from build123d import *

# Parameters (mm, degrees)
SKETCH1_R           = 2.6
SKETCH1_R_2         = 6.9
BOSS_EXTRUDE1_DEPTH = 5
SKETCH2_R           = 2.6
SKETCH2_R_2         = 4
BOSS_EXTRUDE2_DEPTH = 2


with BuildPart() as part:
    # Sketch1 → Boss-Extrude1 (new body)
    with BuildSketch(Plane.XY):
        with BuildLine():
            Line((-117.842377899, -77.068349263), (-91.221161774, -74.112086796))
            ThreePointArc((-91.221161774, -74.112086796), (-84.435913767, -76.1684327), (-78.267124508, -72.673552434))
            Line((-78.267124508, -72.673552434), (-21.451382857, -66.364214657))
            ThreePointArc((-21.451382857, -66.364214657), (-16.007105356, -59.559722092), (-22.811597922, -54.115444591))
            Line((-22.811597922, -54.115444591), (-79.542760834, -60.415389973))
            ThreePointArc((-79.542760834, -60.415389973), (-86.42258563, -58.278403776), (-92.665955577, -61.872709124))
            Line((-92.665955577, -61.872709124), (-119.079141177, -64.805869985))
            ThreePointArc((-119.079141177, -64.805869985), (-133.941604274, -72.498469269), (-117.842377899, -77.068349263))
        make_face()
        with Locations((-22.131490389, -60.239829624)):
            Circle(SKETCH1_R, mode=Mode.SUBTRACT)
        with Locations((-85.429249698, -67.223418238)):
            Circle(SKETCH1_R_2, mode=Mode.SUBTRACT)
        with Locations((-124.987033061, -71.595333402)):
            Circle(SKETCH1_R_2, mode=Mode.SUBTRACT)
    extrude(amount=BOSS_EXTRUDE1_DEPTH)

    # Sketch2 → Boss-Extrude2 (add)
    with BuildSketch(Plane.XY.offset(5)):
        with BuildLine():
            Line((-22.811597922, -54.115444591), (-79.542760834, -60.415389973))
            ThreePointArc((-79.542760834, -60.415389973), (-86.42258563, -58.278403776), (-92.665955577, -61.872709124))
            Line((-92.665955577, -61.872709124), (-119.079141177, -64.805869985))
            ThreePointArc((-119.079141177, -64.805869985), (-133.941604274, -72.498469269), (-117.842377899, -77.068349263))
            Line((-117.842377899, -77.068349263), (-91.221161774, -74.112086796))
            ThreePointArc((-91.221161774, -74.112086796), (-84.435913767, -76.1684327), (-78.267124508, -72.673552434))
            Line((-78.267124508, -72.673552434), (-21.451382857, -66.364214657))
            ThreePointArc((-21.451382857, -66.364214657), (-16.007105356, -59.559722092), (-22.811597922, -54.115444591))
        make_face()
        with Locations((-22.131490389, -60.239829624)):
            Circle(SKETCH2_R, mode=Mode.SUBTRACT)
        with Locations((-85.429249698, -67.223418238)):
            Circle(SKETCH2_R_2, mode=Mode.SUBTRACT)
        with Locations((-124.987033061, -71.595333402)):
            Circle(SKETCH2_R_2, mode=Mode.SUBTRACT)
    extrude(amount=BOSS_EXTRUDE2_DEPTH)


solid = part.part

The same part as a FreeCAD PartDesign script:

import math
import FreeCAD as App
import Part
import Sketcher
from FreeCAD import Vector

doc = App.newDocument("Part")
body = doc.addObject("PartDesign::Body", "Body")

sketch1 = doc.addObject("Sketcher::SketchObject", "Sketch")
body.addObject(sketch1)
sketch1.AttachmentSupport = (doc.XY_Plane, [""])
sketch1.MapMode = "FlatFace"
sketch1.addGeometry(Part.LineSegment(Vector(-117.8, -77.1, 0), Vector(-91.2, -74.1, 0)), False)
sketch1.addGeometry(Part.ArcOfCircle(Part.Circle(Vector(-85.4, -67.2, 0), Vector(0, 0, 1), 9), math.radians(-130), math.radians(-37)), False)
sketch1.addGeometry(Part.LineSegment(Vector(-78.3, -72.7, 0), Vector(-21.5, -66.4, 0)), False)
sketch1.addGeometry(Part.ArcOfCircle(Part.Circle(Vector(-22.1, -60.2, 0), Vector(0, 0, 1), 6.2), math.radians(-84), math.radians(96)), False)
sketch1.addGeometry(Part.LineSegment(Vector(-22.8, -54.1, 0), Vector(-79.5, -60.4, 0)), False)
sketch1.addGeometry(Part.ArcOfCircle(Part.Circle(Vector(-85.4, -67.2, 0), Vector(0, 0, 1), 9), math.radians(49), math.radians(144)), False)
sketch1.addGeometry(Part.LineSegment(Vector(-92.7, -61.9, 0), Vector(-119.1, -64.8, 0)), False)
sketch1.addGeometry(Part.ArcOfCircle(Part.Circle(Vector(-125, -71.6, 0), Vector(0, 0, 1), 9), math.radians(49), math.radians(323)), False)
sketch1.addGeometry(Part.Circle(Vector(-125, -71.6, 0), Vector(0, 0, 1), 6.9), False)
sketch1.addGeometry(Part.Circle(Vector(-85.4, -67.2, 0), Vector(0, 0, 1), 6.9), False)
sketch1.addGeometry(Part.Circle(Vector(-22.1, -60.2, 0), Vector(0, 0, 1), 2.6), False)
sketch1.addConstraint(Sketcher.Constraint("Coincident", 0, 2, 1, 1))
sketch1.addConstraint(Sketcher.Constraint("Coincident", 1, 2, 2, 1))
sketch1.addConstraint(Sketcher.Constraint("Tangent", 2, 2, 3, 1))
sketch1.addConstraint(Sketcher.Constraint("Tangent", 3, 2, 4, 1))
sketch1.addConstraint(Sketcher.Constraint("Coincident", 4, 2, 5, 1))
sketch1.addConstraint(Sketcher.Constraint("Coincident", 5, 2, 6, 1))
sketch1.addConstraint(Sketcher.Constraint("Coincident", 6, 2, 7, 1))
sketch1.addConstraint(Sketcher.Constraint("Coincident", 7, 2, 0, 1))
sketch1.addConstraint(Sketcher.Constraint("Coincident", 5, 3, 1, 3))
sketch1.addConstraint(Sketcher.Constraint("Coincident", 8, 3, 7, 3))
sketch1.addConstraint(Sketcher.Constraint("Coincident", 9, 3, 1, 3))
sketch1.addConstraint(Sketcher.Constraint("Coincident", 10, 3, 3, 3))
sketch1.addConstraint(Sketcher.Constraint("Equal", 1, 5))
sketch1.addConstraint(Sketcher.Constraint("Equal", 5, 7))
sketch1.addConstraint(Sketcher.Constraint("Equal", 8, 9))
sketch1.addConstraint(Sketcher.Constraint("Parallel", 0, 2))
sketch1.addConstraint(Sketcher.Constraint("Parallel", 2, 4))
sketch1.addConstraint(Sketcher.Constraint("Parallel", 4, 6))
sketch1.addConstraint(Sketcher.Constraint("Radius", 1, 9.0))
sketch1.addConstraint(Sketcher.Constraint("Diameter", 8, 13.8))
sketch1.addConstraint(Sketcher.Constraint("Diameter", 10, 5.2))
sketch1.addConstraint(Sketcher.Constraint("Radius", 3, 6.162032))
sketch1.addConstraint(Sketcher.Constraint("DistanceX", 0, 2, 4, 2, 11.678401))
sketch1.addConstraint(Sketcher.Constraint("Distance", 0, 26.784858))
sketch1.addConstraint(Sketcher.Constraint("Distance", 2, 57.164991))
sketch1.addConstraint(Sketcher.Constraint("Distance", 6, 26.575549))
sketch1.addConstraint(Sketcher.Constraint("DistanceX", 1, 3, -1, 1, 85.42925))
sketch1.addConstraint(Sketcher.Constraint("DistanceY", 1, 3, -1, 1, 67.223418))
sketch1.addConstraint(Sketcher.Constraint("DistanceX", 3, 3, -1, 1, 22.13149))
sketch1.addConstraint(Sketcher.Constraint("DistanceY", 3, 3, -1, 1, 60.23983))
sketch1.addConstraint(Sketcher.Constraint("DistanceY", 5, 2, -1, 1, 61.872709))
pad1 = doc.addObject("PartDesign::Pad", "Pad")
body.addObject(pad1)
pad1.Profile = sketch1
pad1.Length = 5

sketch2 = doc.addObject("Sketcher::SketchObject", "Sketch001")
body.addObject(sketch2)
sketch2.AttachmentSupport = (doc.XY_Plane, [""])
sketch2.MapMode = "FlatFace"
sketch2.AttachmentOffset = App.Placement(Vector(0, 0, 5), App.Rotation())
sketch2.addGeometry(Part.LineSegment(Vector(-22.8, -54.1, 0), Vector(-79.5, -60.4, 0)), False)
sketch2.addGeometry(Part.ArcOfCircle(Part.Circle(Vector(-85.4, -67.2, 0), Vector(0, 0, 1), 9), math.radians(49), math.radians(144)), False)
sketch2.addGeometry(Part.LineSegment(Vector(-92.7, -61.9, 0), Vector(-119.1, -64.8, 0)), False)
sketch2.addGeometry(Part.ArcOfCircle(Part.Circle(Vector(-125, -71.6, 0), Vector(0, 0, 1), 9), math.radians(49), math.radians(323)), False)
sketch2.addGeometry(Part.LineSegment(Vector(-117.8, -77.1, 0), Vector(-91.2, -74.1, 0)), False)
sketch2.addGeometry(Part.ArcOfCircle(Part.Circle(Vector(-85.4, -67.2, 0), Vector(0, 0, 1), 9), math.radians(-130), math.radians(-37)), False)
sketch2.addGeometry(Part.LineSegment(Vector(-78.3, -72.7, 0), Vector(-21.5, -66.4, 0)), False)
sketch2.addGeometry(Part.ArcOfCircle(Part.Circle(Vector(-22.1, -60.2, 0), Vector(0, 0, 1), 6.2), math.radians(-84), math.radians(96)), False)
sketch2.addGeometry(Part.Circle(Vector(-125, -71.6, 0), Vector(0, 0, 1), 4), False)
sketch2.addGeometry(Part.Circle(Vector(-85.4, -67.2, 0), Vector(0, 0, 1), 4), False)
sketch2.addGeometry(Part.Circle(Vector(-22.1, -60.2, 0), Vector(0, 0, 1), 2.6), False)
sketch2.addConstraint(Sketcher.Constraint("Coincident", 0, 2, 1, 1))
sketch2.addConstraint(Sketcher.Constraint("Coincident", 1, 2, 2, 1))
sketch2.addConstraint(Sketcher.Constraint("Coincident", 2, 2, 3, 1))
sketch2.addConstraint(Sketcher.Constraint("Coincident", 3, 2, 4, 1))
sketch2.addConstraint(Sketcher.Constraint("Coincident", 4, 2, 5, 1))
sketch2.addConstraint(Sketcher.Constraint("Coincident", 5, 2, 6, 1))
sketch2.addConstraint(Sketcher.Constraint("Tangent", 6, 2, 7, 1))
sketch2.addConstraint(Sketcher.Constraint("Tangent", 7, 2, 0, 1))
sketch2.addConstraint(Sketcher.Constraint("Coincident", 5, 3, 1, 3))
sketch2.addConstraint(Sketcher.Constraint("Coincident", 8, 3, 3, 3))
sketch2.addConstraint(Sketcher.Constraint("Coincident", 9, 3, 1, 3))
sketch2.addConstraint(Sketcher.Constraint("Coincident", 10, 3, 7, 3))
sketch2.addConstraint(Sketcher.Constraint("Equal", 1, 3))
sketch2.addConstraint(Sketcher.Constraint("Equal", 3, 5))
sketch2.addConstraint(Sketcher.Constraint("Equal", 8, 9))
sketch2.addConstraint(Sketcher.Constraint("Parallel", 0, 2))
sketch2.addConstraint(Sketcher.Constraint("Parallel", 2, 4))
sketch2.addConstraint(Sketcher.Constraint("Parallel", 4, 6))
sketch2.addConstraint(Sketcher.Constraint("Diameter", 8, 8.0))
sketch2.addConstraint(Sketcher.Constraint("Radius", 1, 9.0))
sketch2.addConstraint(Sketcher.Constraint("Diameter", 10, 5.2))
sketch2.addConstraint(Sketcher.Constraint("Radius", 7, 6.162032))
sketch2.addConstraint(Sketcher.Constraint("DistanceX", 4, 2, 0, 2, 11.678401))
sketch2.addConstraint(Sketcher.Constraint("Distance", 2, 26.575549))
sketch2.addConstraint(Sketcher.Constraint("Distance", 4, 26.784858))
sketch2.addConstraint(Sketcher.Constraint("Distance", 6, 57.164991))
sketch2.addConstraint(Sketcher.Constraint("DistanceX", 1, 3, -1, 1, 85.42925))
sketch2.addConstraint(Sketcher.Constraint("DistanceY", 1, 3, -1, 1, 67.223418))
sketch2.addConstraint(Sketcher.Constraint("DistanceX", 7, 3, -1, 1, 22.13149))
sketch2.addConstraint(Sketcher.Constraint("DistanceY", 7, 3, -1, 1, 60.23983))
sketch2.addConstraint(Sketcher.Constraint("DistanceY", 1, 2, -1, 1, 61.872709))
pad2 = doc.addObject("PartDesign::Pad", "Pad001")
body.addObject(pad2)
pad2.Profile = sketch2
pad2.Length = 2

doc.recompute()
